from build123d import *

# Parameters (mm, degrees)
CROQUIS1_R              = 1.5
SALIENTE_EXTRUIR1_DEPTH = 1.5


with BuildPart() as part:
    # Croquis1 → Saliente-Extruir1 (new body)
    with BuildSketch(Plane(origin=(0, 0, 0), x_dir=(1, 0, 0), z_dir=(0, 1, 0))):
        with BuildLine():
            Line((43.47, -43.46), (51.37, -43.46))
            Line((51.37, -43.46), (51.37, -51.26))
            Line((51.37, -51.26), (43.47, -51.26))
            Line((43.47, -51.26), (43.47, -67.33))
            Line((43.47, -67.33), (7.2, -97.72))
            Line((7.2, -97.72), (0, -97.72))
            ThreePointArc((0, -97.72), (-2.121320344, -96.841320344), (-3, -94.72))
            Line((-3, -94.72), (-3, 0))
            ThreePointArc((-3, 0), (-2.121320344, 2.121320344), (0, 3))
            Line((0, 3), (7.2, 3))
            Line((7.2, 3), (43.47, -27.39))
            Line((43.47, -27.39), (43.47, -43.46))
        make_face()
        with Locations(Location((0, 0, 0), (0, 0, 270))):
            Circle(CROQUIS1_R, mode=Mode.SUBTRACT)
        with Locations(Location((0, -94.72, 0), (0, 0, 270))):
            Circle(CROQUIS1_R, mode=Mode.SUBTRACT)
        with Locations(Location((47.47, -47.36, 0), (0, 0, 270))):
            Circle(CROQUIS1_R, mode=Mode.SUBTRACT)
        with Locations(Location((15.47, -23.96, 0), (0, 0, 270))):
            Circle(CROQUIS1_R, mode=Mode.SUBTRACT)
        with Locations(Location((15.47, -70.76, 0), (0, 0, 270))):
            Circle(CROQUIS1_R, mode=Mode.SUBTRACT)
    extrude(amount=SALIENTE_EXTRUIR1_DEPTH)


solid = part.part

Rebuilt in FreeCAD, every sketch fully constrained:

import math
import FreeCAD as App
import Part
import Sketcher
Q = App.Units.Quantity

doc = App.newDocument("Part")
body = doc.addObject("PartDesign::Body", "Body")

sketch1 = body.newObject("Sketcher::SketchObject", "Sketch")
sketch1.AttachmentSupport = (doc.getObject("XZ_Plane"), [""])
sketch1.MapMode = "FlatFace"
sketch1.addGeometry(Part.LineSegment(App.Vector(51.4, 43.5, 0), App.Vector(43.5, 43.5, 0)), False)
sketch1.addGeometry(Part.LineSegment(App.Vector(43.5, 43.5, 0), App.Vector(43.5, 27.4, 0)), False)
sketch1.addGeometry(Part.LineSegment(App.Vector(43.5, 27.4, 0), App.Vector(7.2, -3, 0)), False)
sketch1.addGeometry(Part.LineSegment(App.Vector(7.2, -3, 0), App.Vector(0, -3, 0)), False)
sketch1.addGeometry(Part.ArcOfCircle(Part.Circle(App.Vector(0, 0, 0), App.Vector(0, 0, 1), 3), math.radians(180), math.radians(270)), False)
sketch1.addGeometry(Part.LineSegment(App.Vector(-3, 0, 0), App.Vector(-3, 94.7, 0)), False)
sketch1.addGeometry(Part.ArcOfCircle(Part.Circle(App.Vector(0, 94.7, 0), App.Vector(0, 0, 1), 3), math.radians(90), math.radians(180)), False)
sketch1.addGeometry(Part.LineSegment(App.Vector(0, 97.7, 0), App.Vector(7.2, 97.7, 0)), False)
sketch1.addGeometry(Part.LineSegment(App.Vector(7.2, 97.7, 0), App.Vector(43.5, 67.3, 0)), False)
sketch1.addGeometry(Part.LineSegment(App.Vector(43.5, 67.3, 0), App.Vector(43.5, 51.3, 0)), False)
sketch1.addGeometry(Part.LineSegment(App.Vector(43.5, 51.3, 0), App.Vector(51.4, 51.3, 0)), False)
sketch1.addGeometry(Part.LineSegment(App.Vector(51.4, 51.3, 0), App.Vector(51.4, 43.5, 0)), False)
sketch1.addGeometry(Part.Circle(App.Vector(0, 94.7, 0), App.Vector(0, 0, 1), 1.5), False)
sketch1.addGeometry(Part.Circle(App.Vector(15.5, 70.8, 0), App.Vector(0, 0, 1), 1.5), False)
sketch1.addGeometry(Part.Circle(App.Vector(47.5, 47.4, 0), App.Vector(0, 0, 1), 1.5), False)
sketch1.addGeometry(Part.Circle(App.Vector(15.5, 24, 0), App.Vector(0, 0, 1), 1.5), False)
sketch1.addGeometry(Part.Circle(App.Vector(0, 0, 0), App.Vector(0, 0, 1), 1.5), False)
sketch1.addConstraint(Sketcher.Constraint("Coincident", 0, 2, 1, 1))
sketch1.addConstraint(Sketcher.Constraint("Coincident", 1, 2, 2, 1))
sketch1.addConstraint(Sketcher.Constraint("Coincident", 2, 2, 3, 1))
sketch1.addConstraint(Sketcher.Constraint("Tangent", 3, 2, 4, 2))
sketch1.addConstraint(Sketcher.Constraint("Tangent", 4, 1, 5, 1))
sketch1.addConstraint(Sketcher.Constraint("Tangent", 5, 2, 6, 2))
sketch1.addConstraint(Sketcher.Constraint("Tangent", 6, 1, 7, 1))
sketch1.addConstraint(Sketcher.Constraint("Coincident", 7, 2, 8, 1))
sketch1.addConstraint(Sketcher.Constraint("Coincident", 8, 2, 9, 1))
sketch1.addConstraint(Sketcher.Constraint("Coincident", 9, 2, 10, 1))
sketch1.addConstraint(Sketcher.Constraint("Coincident", 10, 2, 11, 1))
sketch1.addConstraint(Sketcher.Constraint("Coincident", 11, 2, 0, 1))
sketch1.addConstraint(Sketcher.Constraint("Horizontal", 0))
sketch1.addConstraint(Sketcher.Constraint("Vertical", 1))
sketch1.addConstraint(Sketcher.Constraint("Horizontal", 3))
sketch1.addConstraint(Sketcher.Constraint("Vertical", 5))
sketch1.addConstraint(Sketcher.Constraint("Horizontal", 7))
sketch1.addConstraint(Sketcher.Constraint("Vertical", 9))
sketch1.addConstraint(Sketcher.Constraint("Horizontal", 10))
sketch1.addConstraint(Sketcher.Constraint("Vertical", 11))
sketch1.addConstraint(Sketcher.Constraint("Coincident", 4, 3, -1, 1))
sketch1.addConstraint(Sketcher.Constraint("Coincident", 16, 3, -1, 1))
sketch1.addConstraint(Sketcher.Constraint("Coincident", 12, 3, 6, 3))
sketch1.addConstraint(Sketcher.Constraint("Equal", 4, 6))
sketch1.addConstraint(Sketcher.Constraint("Equal", 12, 13))
sketch1.addConstraint(Sketcher.Constraint("Equal", 13, 14))
sketch1.addConstraint(Sketcher.Constraint("Equal", 14, 15))
sketch1.addConstraint(Sketcher.Constraint("Equal", 15, 16))
sketch1.addConstraint(Sketcher.Constraint("Vertical", 13, 3, 15, 3))
sketch1.addConstraint(Sketcher.Constraint("Vertical", 2, 2, 7, 2))
sketch1.addConstraint(Sketcher.Constraint("Vertical", 1, 2, 8, 2))
sketch1.addConstraint(Sketcher.Constraint("Equal", 1, 9))
sketch1.addConstraint(Sketcher.Constraint("Equal", 2, 8))
sketch1.addConstraint(Sketcher.Constraint("Diameter", 12, Q("3 mm")))
sketch1.addConstraint(Sketcher.Constraint("Radius", 4, Q("3 mm")))
sketch1.addConstraint(Sketcher.Constraint("DistanceX", 0, 2, 0, 1, Q("7.9 mm")))
sketch1.addConstraint(Sketcher.Constraint("DistanceX", 3, 2, 3, 1, Q("7.2 mm")))
sketch1.addConstraint(Sketcher.Constraint("DistanceY", 11, 2, 11, 1, Q("7.8 mm")))
sketch1.addConstraint(Sketcher.Constraint("DistanceX", 13, 3, 14, 3, Q("32 mm")))
sketch1.addConstraint(Sketcher.Constraint("DistanceX", 0, 2, 14, 3, Q("4 mm")))
sketch1.addConstraint(Sketcher.Constraint("DistanceY", 1, 2, 1, 1, Q("16.07 mm")))
sketch1.addConstraint(Sketcher.Constraint("DistanceY", 5, 1, 5, 2, Q("94.72 mm")))
sketch1.addConstraint(Sketcher.Constraint("DistanceY", 14, 3, 13, 3, Q("23.4 mm")))
sketch1.addConstraint(Sketcher.Constraint("DistanceY", 15, 3, 14, 3, Q("23.4 mm")))
sketch1.addConstraint(Sketcher.Constraint("DistanceY", 0, 2, 14, 3, Q("3.9 mm")))
sketch1.addConstraint(Sketcher.Constraint("DistanceX", -1, 1, 13, 3, Q("15.47 mm")))
pad1 = body.newObject("PartDesign::Pad", "Pad")
pad1.Profile = sketch1
pad1.Length = 1.5
pad1.Reversed = True

doc.recompute()
